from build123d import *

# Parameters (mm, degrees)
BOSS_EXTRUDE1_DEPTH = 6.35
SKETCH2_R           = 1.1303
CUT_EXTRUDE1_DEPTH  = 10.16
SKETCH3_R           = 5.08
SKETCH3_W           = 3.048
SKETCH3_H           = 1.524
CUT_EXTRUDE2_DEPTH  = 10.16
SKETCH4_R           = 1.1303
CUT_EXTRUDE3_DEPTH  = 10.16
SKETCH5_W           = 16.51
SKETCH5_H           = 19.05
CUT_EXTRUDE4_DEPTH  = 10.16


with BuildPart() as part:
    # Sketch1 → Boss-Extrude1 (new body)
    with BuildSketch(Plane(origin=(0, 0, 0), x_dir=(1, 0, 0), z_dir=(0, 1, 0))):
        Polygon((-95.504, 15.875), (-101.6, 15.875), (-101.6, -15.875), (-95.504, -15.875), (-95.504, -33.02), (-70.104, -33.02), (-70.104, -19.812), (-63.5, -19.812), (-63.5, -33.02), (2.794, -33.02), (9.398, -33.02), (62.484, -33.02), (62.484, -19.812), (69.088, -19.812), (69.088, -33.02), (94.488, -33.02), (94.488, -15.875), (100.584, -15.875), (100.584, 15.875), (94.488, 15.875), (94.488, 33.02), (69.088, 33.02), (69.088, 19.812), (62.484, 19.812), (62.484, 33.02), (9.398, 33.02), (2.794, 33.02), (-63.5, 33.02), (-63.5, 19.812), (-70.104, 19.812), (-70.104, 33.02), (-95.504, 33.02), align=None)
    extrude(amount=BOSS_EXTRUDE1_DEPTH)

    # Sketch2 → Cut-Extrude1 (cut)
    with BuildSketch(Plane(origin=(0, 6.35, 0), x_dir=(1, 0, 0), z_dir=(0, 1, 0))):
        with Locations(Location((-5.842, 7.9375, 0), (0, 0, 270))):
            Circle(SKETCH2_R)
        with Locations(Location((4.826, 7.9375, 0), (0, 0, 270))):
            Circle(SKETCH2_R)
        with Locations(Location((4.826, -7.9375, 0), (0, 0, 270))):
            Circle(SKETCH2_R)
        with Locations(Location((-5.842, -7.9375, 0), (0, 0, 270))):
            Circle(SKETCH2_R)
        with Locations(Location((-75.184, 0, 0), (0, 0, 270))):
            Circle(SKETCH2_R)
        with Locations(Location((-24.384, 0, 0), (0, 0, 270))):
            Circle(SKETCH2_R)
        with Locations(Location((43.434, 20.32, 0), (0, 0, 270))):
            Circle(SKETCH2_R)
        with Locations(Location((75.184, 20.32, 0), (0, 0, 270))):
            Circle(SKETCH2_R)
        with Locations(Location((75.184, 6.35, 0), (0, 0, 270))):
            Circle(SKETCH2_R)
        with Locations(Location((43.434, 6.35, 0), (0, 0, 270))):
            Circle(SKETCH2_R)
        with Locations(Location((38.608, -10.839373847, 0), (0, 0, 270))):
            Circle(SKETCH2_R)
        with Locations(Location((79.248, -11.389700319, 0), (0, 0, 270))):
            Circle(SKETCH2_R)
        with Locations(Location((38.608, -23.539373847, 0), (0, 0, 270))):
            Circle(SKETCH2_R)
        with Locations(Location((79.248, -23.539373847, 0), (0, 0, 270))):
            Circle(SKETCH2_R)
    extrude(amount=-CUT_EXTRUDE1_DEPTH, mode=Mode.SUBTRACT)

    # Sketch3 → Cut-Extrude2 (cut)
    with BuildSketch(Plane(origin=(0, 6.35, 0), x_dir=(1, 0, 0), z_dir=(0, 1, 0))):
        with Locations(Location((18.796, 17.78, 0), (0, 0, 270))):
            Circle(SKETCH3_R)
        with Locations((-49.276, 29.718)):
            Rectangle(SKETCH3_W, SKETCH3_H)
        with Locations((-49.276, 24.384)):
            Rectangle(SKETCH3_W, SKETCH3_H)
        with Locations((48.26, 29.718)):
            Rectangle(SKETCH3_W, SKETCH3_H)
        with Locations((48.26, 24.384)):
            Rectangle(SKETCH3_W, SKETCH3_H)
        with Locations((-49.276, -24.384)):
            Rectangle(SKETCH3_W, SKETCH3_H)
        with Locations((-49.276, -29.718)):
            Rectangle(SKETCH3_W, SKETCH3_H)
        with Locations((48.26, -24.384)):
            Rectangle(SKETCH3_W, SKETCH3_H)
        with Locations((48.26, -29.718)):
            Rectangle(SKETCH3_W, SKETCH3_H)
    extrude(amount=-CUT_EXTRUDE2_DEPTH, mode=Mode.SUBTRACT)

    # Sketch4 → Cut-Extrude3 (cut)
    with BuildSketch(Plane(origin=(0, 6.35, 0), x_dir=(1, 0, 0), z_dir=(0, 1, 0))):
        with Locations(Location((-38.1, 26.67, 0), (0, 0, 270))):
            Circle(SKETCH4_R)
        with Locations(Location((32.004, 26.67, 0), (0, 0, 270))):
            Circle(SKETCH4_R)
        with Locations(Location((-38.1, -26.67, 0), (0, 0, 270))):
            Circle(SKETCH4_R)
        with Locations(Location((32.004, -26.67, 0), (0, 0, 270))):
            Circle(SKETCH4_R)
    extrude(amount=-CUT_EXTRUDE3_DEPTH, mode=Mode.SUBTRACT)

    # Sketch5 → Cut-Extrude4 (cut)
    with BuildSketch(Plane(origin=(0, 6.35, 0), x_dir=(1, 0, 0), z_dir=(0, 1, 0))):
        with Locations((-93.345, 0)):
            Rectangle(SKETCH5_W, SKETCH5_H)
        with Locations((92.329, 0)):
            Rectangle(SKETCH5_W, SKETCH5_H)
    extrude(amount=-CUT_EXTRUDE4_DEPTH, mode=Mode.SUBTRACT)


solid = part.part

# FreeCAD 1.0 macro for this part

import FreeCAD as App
import Part
import Sketcher
Q = App.Units.Quantity


def add_polygon(sketch, points):
    """Adds a closed chain of lines whose ends are joined by coincident constraints."""
    first, n = sketch.GeometryCount, len(points)
    for a, b in zip(points, points[1:] + points[:1]):
        sketch.addGeometry(Part.LineSegment(App.Vector(*a, 0), App.Vector(*b, 0)), False)
    for i in range(n):
        sketch.addConstraint(Sketcher.Constraint("Coincident", first + i, 2, first + (i + 1) % n, 1))

doc = App.newDocument("Part")
params = doc.addObject("Spreadsheet::Sheet", "Params")
for row, (alias, value) in enumerate([
    ("sketch1_width", "1 in"),
    ("sketch1_width2", "0.24 in"),
    ("sketch1_width3", "0.26 in"),
    ("sketch1_width4", "4.96 in"),
    ("sketch1_height", "1.25 in"),
    ("pad1_length", "0.25 in"),
    ("sketch2_diameter", "0.089 in"),
    ("pocket1_length", "0.4 in"),
    ("sketch3_diameter", "0.4 in"),
    ("sketch3_width", "0.12 in"),
    ("sketch3_height", "0.06 in"),
    ("pocket2_length", "0.4 in"),
    ("sketch4_diameter", "0.089 in"),
    ("pocket3_length", "0.4 in"),
    ("sketch5_width", "0.65 in"),
    ("sketch5_height", "0.75 in"),
    ("pocket4_length", "0.4 in"),
], start=1):
    params.set(f"A{row}", alias)
    params.set(f"B{row}", "=" + value)
    params.setAlias(f"B{row}", alias)

body = doc.addObject("PartDesign::Body", "Body")

sketch1 = body.newObject("Sketcher::SketchObject", "Sketch")
sketch1.AttachmentSupport = (doc.getObject("XZ_Plane"), [""])
sketch1.MapMode = "FlatFace"
add_polygon(sketch1, [(-96, -16), (-102, -16), (-102, 16), (-96, 16), (-96, 33), (-70, 33), (-70, 20), (-64, 20), (-64, 33), (62, 33), (62, 20), (69, 20), (69, 33), (94, 33), (94, 16), (101, 16), (101, -16), (94, -16), (94, -33), (69, -33), (69, -20), (62, -20), (62, -33), (-64, -33), (-64, -20), (-70, -20), (-70, -33), (-96, -33)])
sketch1.addConstraint([
    Sketcher.Constraint("Horizontal", 0),
    Sketcher.Constraint("Vertical", 1),
    Sketcher.Constraint("Horizontal", 2),
    Sketcher.Constraint("Vertical", 3),
    Sketcher.Constraint("Horizontal", 4),
    Sketcher.Constraint("Vertical", 5),
    Sketcher.Constraint("Horizontal", 6),
    Sketcher.Constraint("Vertical", 7),
    Sketcher.Constraint("Horizontal", 8),
    Sketcher.Constraint("Vertical", 9),
    Sketcher.Constraint("Horizontal", 10),
    Sketcher.Constraint("Vertical", 11),
    Sketcher.Constraint("Horizontal", 12),
    Sketcher.Constraint("Vertical", 13),
    Sketcher.Constraint("Horizontal", 14),
    Sketcher.Constraint("Vertical", 15),
    Sketcher.Constraint("Horizontal", 16),
    Sketcher.Constraint("Vertical", 17),
    Sketcher.Constraint("Horizontal", 18),
    Sketcher.Constraint("Vertical", 19),
    Sketcher.Constraint("Horizontal", 20),
    Sketcher.Constraint("Vertical", 21),
    Sketcher.Constraint("Horizontal", 22),
    Sketcher.Constraint("Vertical", 23),
    Sketcher.Constraint("Horizontal", 24),
    Sketcher.Constraint("Vertical", 25),
    Sketcher.Constraint("Horizontal", 26),
    Sketcher.Constraint("Vertical", 27),
    Sketcher.Constraint("Symmetric", 13, 2, 16, 2, -1),
    Sketcher.Constraint("Symmetric", 11, 2, 18, 2, -1),
    Sketcher.Constraint("Symmetric", 9, 2, 20, 2, -1),
    Sketcher.Constraint("Symmetric", 7, 2, 22, 2, -1),
    Sketcher.Constraint("Symmetric", 5, 2, 24, 2, -1),
    Sketcher.Constraint("Symmetric", 3, 2, 26, 2, -1),
    Sketcher.Constraint("Horizontal", 4, 2, 7, 2),
    Sketcher.Constraint("Horizontal", 6, 2, 9, 2),
    Sketcher.Constraint("Horizontal", 8, 2, 11, 2),
    Sketcher.Constraint("Horizontal", 2, 2, 13, 2),
    Sketcher.Constraint("Horizontal", 0, 2, 15, 2),
    Sketcher.Constraint("Equal", 6, 10),
    Sketcher.Constraint("Equal", 4, 12),
    Sketcher.Constraint("Equal", 2, 14),
    Sketcher.Constraint("DistanceX", 4, 1, 4, 2, Q("1 in")),
    Sketcher.Constraint("DistanceX", 0, 2, -1, 1, Q("4 in")),
    Sketcher.Constraint("DistanceX", 0, 2, 0, 1, Q("0.24 in")),
    Sketcher.Constraint("DistanceX", 6, 1, 6, 2, Q("0.26 in")),
    Sketcher.Constraint("DistanceX", 8, 1, 8, 2, Q("4.96 in")),
    Sketcher.Constraint("DistanceY", 1, 1, 1, 2, Q("1.25 in")),
    Sketcher.Constraint("DistanceY", 5, 2, 5, 1, Q("0.52 in")),
    Sketcher.Constraint("DistanceY", -1, 1, 3, 2, Q("1.3 in")),
])
sketch1.setExpression("Constraints[70]", "Params.sketch1_width")
sketch1.setExpression("Constraints[72]", "Params.sketch1_width2")
sketch1.setExpression("Constraints[73]", "Params.sketch1_width3")
sketch1.setExpression("Constraints[74]", "Params.sketch1_width4")
sketch1.setExpression("Constraints[75]", "Params.sketch1_height")
pad1 = body.newObject("PartDesign::Pad", "Pad")
pad1.Profile = sketch1
pad1.setExpression("Length", "Params.pad1_length")
pad1.Reversed = True

sketch2 = body.newObject("Sketcher::SketchObject", "Sketch001")
sketch2.AttachmentSupport = (doc.getObject("XZ_Plane"), [""])
sketch2.MapMode = "FlatFace"
sketch2.AttachmentOffset = App.Placement(App.Vector(0, 0, -0.25 * 25.4), App.Rotation())
sketch2.addGeometry([
    Part.Circle(App.Vector(-5.8, -7.9, 0), App.Vector(0, 0, 1), 1.1),
    Part.Circle(App.Vector(4.8, -7.9, 0), App.Vector(0, 0, 1), 1.1),
    Part.Circle(App.Vector(4.8, 7.9, 0), App.Vector(0, 0, 1), 1.1),
    Part.Circle(App.Vector(-5.8, 7.9, 0), App.Vector(0, 0, 1), 1.1),
    Part.Circle(App.Vector(-75.2, 0, 0), App.Vector(0, 0, 1), 1.1),
    Part.Circle(App.Vector(-24.4, 0, 0), App.Vector(0, 0, 1), 1.1),
    Part.Circle(App.Vector(43.4, -20.3, 0), App.Vector(0, 0, 1), 1.1),
    Part.Circle(App.Vector(75.2, -20.3, 0), App.Vector(0, 0, 1), 1.1),
    Part.Circle(App.Vector(75.2, -6.3, 0), App.Vector(0, 0, 1), 1.1),
    Part.Circle(App.Vector(43.4, -6.3, 0), App.Vector(0, 0, 1), 1.1),
    Part.Circle(App.Vector(38.6, 10.8, 0), App.Vector(0, 0, 1), 1.1),
    Part.Circle(App.Vector(79.2, 11.4, 0), App.Vector(0, 0, 1), 1.1),
    Part.Circle(App.Vector(38.6, 23.5, 0), App.Vector(0, 0, 1), 1.1),
    Part.Circle(App.Vector(79.2, 23.5, 0), App.Vector(0, 0, 1), 1.1),
], False)
sketch2.addConstraint([
    Sketcher.Constraint("Equal", 0, 1),
    Sketcher.Constraint("Equal", 1, 2),
    Sketcher.Constraint("Equal", 2, 3),
    Sketcher.Constraint("Equal", 3, 4),
    Sketcher.Constraint("Equal", 4, 5),
    Sketcher.Constraint("Equal", 5, 6),
    Sketcher.Constraint("Equal", 6, 7),
    Sketcher.Constraint("Equal", 7, 8),
    Sketcher.Constraint("Equal", 8, 9),
    Sketcher.Constraint("Equal", 9, 10),
    Sketcher.Constraint("Equal", 10, 11),
    Sketcher.Constraint("Equal", 11, 12),
    Sketcher.Constraint("Equal", 12, 13),
    Sketcher.Constraint("Symmetric", 1, 3, 2, 3, -1),
    Sketcher.Constraint("Symmetric", 0, 3, 3, 3, -1),
    Sketcher.Constraint("PointOnObject", 4, 3, -1),
    Sketcher.Constraint("PointOnObject", 5, 3, -1),
    Sketcher.Constraint("Horizontal", 0, 3, 1, 3),
    Sketcher.Constraint("Horizontal", 6, 3, 7, 3),
    Sketcher.Constraint("Horizontal", 8, 3, 9, 3),
    Sketcher.Constraint("Horizontal", 12, 3, 13, 3),
    Sketcher.Constraint("Vertical", 7, 3, 8, 3),
    Sketcher.Constraint("Vertical", 6, 3, 9, 3),
    Sketcher.Constraint("Vertical", 10, 3, 12, 3),
    Sketcher.Constraint("Vertical", 11, 3, 13, 3),
    Sketcher.Constraint("Diameter", 0, Q("0.089 in")),
    Sketcher.Constraint("DistanceX", 4, 3, 5, 3, Q("2 in")),
    Sketcher.Constraint("DistanceY", 6, 3, -1, 1, Q("0.8 in")),
    Sketcher.Constraint("DistanceX", 10, 3, 11, 3, Q("1.6 in")),
    Sketcher.Constraint("DistanceY", 10, 3, 12, 3, Q("0.5 in")),
    Sketcher.Constraint("DistanceX", 0, 3, -1, 1, Q("0.23 in")),
    Sketcher.Constraint("DistanceX", -1, 1, 1, 3, Q("0.19 in")),
    Sketcher.Constraint("DistanceX", 4, 3, -1, 1, Q("2.96 in")),
    Sketcher.Constraint("DistanceX", -1, 1, 6, 3, Q("1.71 in")),
    Sketcher.Constraint("DistanceX", -1, 1, 7, 3, Q("2.96 in")),
    Sketcher.Constraint("DistanceY", 8, 3, -1, 1, Q("0.25 in")),
    Sketcher.Constraint("DistanceX", -1, 1, 10, 3, Q("1.52 in")),
    Sketcher.Constraint("DistanceY", 0, 3, -1, 1, Q("0.3125 in")),
    Sketcher.Constraint("DistanceY", -1, 1, 11, 3, 11.3897),
    Sketcher.Constraint("DistanceY", -1, 1, 10, 3, 10.839374),
])
sketch2.setExpression("Constraints[25]", "Params.sketch2_diameter")
pocket1 = body.newObject("PartDesign::Pocket", "Pocket")
pocket1.Profile = sketch2
pocket1.setExpression("Length", "Params.pocket1_length")
pocket1.Reversed = True

sketch3 = body.newObject("Sketcher::SketchObject", "Sketch002")
sketch3.AttachmentSupport = (doc.getObject("XZ_Plane"), [""])
sketch3.MapMode = "FlatFace"
sketch3.AttachmentOffset = App.Placement(App.Vector(0, 0, -0.25 * 25.4), App.Rotation())
sketch3.addGeometry(Part.Circle(App.Vector(18.8, -17.8, 0), App.Vector(0, 0, 1), 5.1), False)
add_polygon(sketch3, [(-50.8, -30.5), (-50.8, -29), (-47.8, -29), (-47.8, -30.5)])
add_polygon(sketch3, [(-50.8, -25.1), (-50.8, -23.6), (-47.8, -23.6), (-47.8, -25.1)])
add_polygon(sketch3, [(46.7, -30.5), (46.7, -29), (49.8, -29), (49.8, -30.5)])
add_polygon(sketch3, [(46.7, -25.1), (46.7, -23.6), (49.8, -23.6), (49.8, -25.1)])
add_polygon(sketch3, [(-50.8, 23.6), (-50.8, 25.1), (-47.8, 25.1), (-47.8, 23.6)])
add_polygon(sketch3, [(-50.8, 29), (-50.8, 30.5), (-47.8, 30.5), (-47.8, 29)])
add_polygon(sketch3, [(46.7, 23.6), (46.7, 25.1), (49.8, 25.1), (49.8, 23.6)])
add_polygon(sketch3, [(46.7, 29), (46.7, 30.5), (49.8, 30.5), (49.8, 29)])
sketch3.addConstraint([
    Sketcher.Constraint("Vertical", 1),
    Sketcher.Constraint("Horizontal", 2),
    Sketcher.Constraint("Vertical", 3),
    Sketcher.Constraint("Horizontal", 4),
    Sketcher.Constraint("Vertical", 5),
    Sketcher.Constraint("Horizontal", 6),
    Sketcher.Constraint("Vertical", 7),
    Sketcher.Constraint("Horizontal", 8),
    Sketcher.Constraint("Vertical", 9),
    Sketcher.Constraint("Horizontal", 10),
    Sketcher.Constraint("Vertical", 11),
    Sketcher.Constraint("Horizontal", 12),
    Sketcher.Constraint("Vertical", 13),
    Sketcher.Constraint("Horizontal", 14),
    Sketcher.Constraint("Vertical", 15),
    Sketcher.Constraint("Horizontal", 16),
    Sketcher.Constraint("Vertical", 17),
    Sketcher.Constraint("Horizontal", 18),
    Sketcher.Constraint("Vertical", 19),
    Sketcher.Constraint("Horizontal", 20),
    Sketcher.Constraint("Vertical", 21),
    Sketcher.Constraint("Horizontal", 22),
    Sketcher.Constraint("Vertical", 23),
    Sketcher.Constraint("Horizontal", 24),
    Sketcher.Constraint("Vertical", 25),
    Sketcher.Constraint("Horizontal", 26),
    Sketcher.Constraint("Vertical", 27),
    Sketcher.Constraint("Horizontal", 28),
    Sketcher.Constraint("Vertical", 29),
    Sketcher.Constraint("Horizontal", 30),
    Sketcher.Constraint("Vertical", 31),
    Sketcher.Constraint("Horizontal", 32),
    Sketcher.Constraint("Symmetric", 8, 2, 17, 2, -1),
    Sketcher.Constraint("Symmetric", 6, 2, 19, 2, -1),
    Sketcher.Constraint("Symmetric", 4, 2, 21, 2, -1),
    Sketcher.Constraint("Symmetric", 2, 2, 23, 2, -1),
    Sketcher.Constraint("Symmetric", 16, 2, 25, 2, -1),
    Sketcher.Constraint("Symmetric", 14, 2, 27, 2, -1),
    Sketcher.Constraint("Symmetric", 12, 2, 29, 2, -1),
    Sketcher.Constraint("Symmetric", 10, 2, 31, 2, -1),
    Sketcher.Constraint("Horizontal", 2, 2, 9, 2),
    Sketcher.Constraint("Horizontal", 4, 2, 11, 2),
    Sketcher.Constraint("Horizontal", 6, 2, 13, 2),
    Sketcher.Constraint("Horizontal", 8, 2, 15, 2),
    Sketcher.Constraint("Vertical", 4, 2, 5, 2),
    Sketcher.Constraint("Vertical", 3, 2, 6, 2),
    Sketcher.Constraint("Vertical", 12, 2, 13, 2),
    Sketcher.Constraint("Vertical", 11, 2, 14, 2),
    Sketcher.Constraint("Equal", 8, 10),
    Sketcher.Constraint("Equal", 3, 5),
    Sketcher.Constraint("Diameter", 0, Q("0.4 in")),
    Sketcher.Constraint("DistanceX", 1, 2, -1, 1, Q("2 in")),
    Sketcher.Constraint("DistanceX", 2, 1, 2, 2, Q("0.12 in")),
    Sketcher.Constraint("DistanceY", 1, 1, 1, 2, Q("0.06 in")),
    Sketcher.Constraint("DistanceY", 0, 3, -1, 1, Q("0.7 in")),
    Sketcher.Constraint("DistanceY", 3, 2, -1, 1, Q("1.2 in")),
    Sketcher.Constraint("DistanceX", 0, 3, 9, 2, Q("1.1 in")),
    Sketcher.Constraint("DistanceX", -1, 1, 0, 3, Q("0.74 in")),
    Sketcher.Constraint("DistanceY", 5, 2, -1, 1, Q("0.93 in")),
])
sketch3.setExpression("Constraints[82]", "Params.sketch3_diameter")
sketch3.setExpression("Constraints[84]", "Params.sketch3_width")
sketch3.setExpression("Constraints[85]", "Params.sketch3_height")
pocket2 = body.newObject("PartDesign::Pocket", "Pocket001")
pocket2.Profile = sketch3
pocket2.setExpression("Length", "Params.pocket2_length")
pocket2.Reversed = True

sketch4 = body.newObject("Sketcher::SketchObject", "Sketch003")
sketch4.AttachmentSupport = (doc.getObject("XZ_Plane"), [""])
sketch4.MapMode = "FlatFace"
sketch4.AttachmentOffset = App.Placement(App.Vector(0, 0, -0.25 * 25.4), App.Rotation())
sketch4.addGeometry([
    Part.Circle(App.Vector(-38.1, -26.7, 0), App.Vector(0, 0, 1), 1.1),
    Part.Circle(App.Vector(32, -26.7, 0), App.Vector(0, 0, 1), 1.1),
    Part.Circle(App.Vector(-38.1, 26.7, 0), App.Vector(0, 0, 1), 1.1),
    Part.Circle(App.Vector(32, 26.7, 0), App.Vector(0, 0, 1), 1.1),
], False)
sketch4.addConstraint([
    Sketcher.Constraint("Equal", 0, 1),
    Sketcher.Constraint("Equal", 1, 2),
    Sketcher.Constraint("Equal", 2, 3),
    Sketcher.Constraint("Symmetric", 0, 3, 2, 3, -1),
    Sketcher.Constraint("Symmetric", 1, 3, 3, 3, -1),
    Sketcher.Constraint("Horizontal", 0, 3, 1, 3),
    Sketcher.Constraint("Diameter", 0, Q("0.089 in")),
    Sketcher.Constraint("DistanceX", 0, 3, -1, 1, Q("1.5 in")),
    Sketcher.Constraint("DistanceY", 0, 3, 2, 3, Q("2.1 in")),
    Sketcher.Constraint("DistanceX", -1, 1, 1, 3, Q("1.26 in")),
])
sketch4.setExpression("Constraints[6]", "Params.sketch4_diameter")
pocket3 = body.newObject("PartDesign::Pocket", "Pocket002")
pocket3.Profile = sketch4
pocket3.setExpression("Length", "Params.pocket3_length")
pocket3.Reversed = True

sketch5 = body.newObject("Sketcher::SketchObject", "Sketch004")
sketch5.AttachmentSupport = (doc.getObject("XZ_Plane"), [""])
sketch5.MapMode = "FlatFace"
sketch5.AttachmentOffset = App.Placement(App.Vector(0, 0, -0.25 * 25.4), App.Rotation())
add_polygon(sketch5, [(-102, -10), (-102, 10), (-85, 10), (-85, -10)])
add_polygon(sketch5, [(84, -10), (84, 10), (101, 10), (101, -10)])
sketch5.addConstraint([
    Sketcher.Constraint("Vertical", 0),
    Sketcher.Constraint("Horizontal", 1),
    Sketcher.Constraint("Vertical", 2),
    Sketcher.Constraint("Horizontal", 3),
    Sketcher.Constraint("Vertical", 4),
    Sketcher.Constraint("Horizontal", 5),
    Sketcher.Constraint("Vertical", 6),
    Sketcher.Constraint("Horizontal", 7),
    Sketcher.Constraint("Horizontal", 1, 2, 4, 2),
    Sketcher.Constraint("Horizontal", 3, 2, 6, 2),
    Sketcher.Constraint("Equal", 3, 5),
    Sketcher.Constraint("DistanceX", 0, 2, -1, 1, Q("4 in")),
    Sketcher.Constraint("DistanceX", 1, 1, 1, 2, Q("0.65 in")),
    Sketcher.Constraint("DistanceY", 0, 1, 0, 2, Q("0.75 in")),
    Sketcher.Constraint("DistanceX", -1, 1, 4, 2, Q("3.31 in")),
    Sketcher.Constraint("DistanceY", -1, 1, 0, 2, Q("0.375 in")),
])
sketch5.setExpression("Constraints[20]", "Params.sketch5_width")
sketch5.setExpression("Constraints[21]", "Params.sketch5_height")
pocket4 = body.newObject("PartDesign::Pocket", "Pocket003")
pocket4.Profile = sketch5
pocket4.setExpression("Length", "Params.pocket4_length")
pocket4.Reversed = True

doc.recompute()
